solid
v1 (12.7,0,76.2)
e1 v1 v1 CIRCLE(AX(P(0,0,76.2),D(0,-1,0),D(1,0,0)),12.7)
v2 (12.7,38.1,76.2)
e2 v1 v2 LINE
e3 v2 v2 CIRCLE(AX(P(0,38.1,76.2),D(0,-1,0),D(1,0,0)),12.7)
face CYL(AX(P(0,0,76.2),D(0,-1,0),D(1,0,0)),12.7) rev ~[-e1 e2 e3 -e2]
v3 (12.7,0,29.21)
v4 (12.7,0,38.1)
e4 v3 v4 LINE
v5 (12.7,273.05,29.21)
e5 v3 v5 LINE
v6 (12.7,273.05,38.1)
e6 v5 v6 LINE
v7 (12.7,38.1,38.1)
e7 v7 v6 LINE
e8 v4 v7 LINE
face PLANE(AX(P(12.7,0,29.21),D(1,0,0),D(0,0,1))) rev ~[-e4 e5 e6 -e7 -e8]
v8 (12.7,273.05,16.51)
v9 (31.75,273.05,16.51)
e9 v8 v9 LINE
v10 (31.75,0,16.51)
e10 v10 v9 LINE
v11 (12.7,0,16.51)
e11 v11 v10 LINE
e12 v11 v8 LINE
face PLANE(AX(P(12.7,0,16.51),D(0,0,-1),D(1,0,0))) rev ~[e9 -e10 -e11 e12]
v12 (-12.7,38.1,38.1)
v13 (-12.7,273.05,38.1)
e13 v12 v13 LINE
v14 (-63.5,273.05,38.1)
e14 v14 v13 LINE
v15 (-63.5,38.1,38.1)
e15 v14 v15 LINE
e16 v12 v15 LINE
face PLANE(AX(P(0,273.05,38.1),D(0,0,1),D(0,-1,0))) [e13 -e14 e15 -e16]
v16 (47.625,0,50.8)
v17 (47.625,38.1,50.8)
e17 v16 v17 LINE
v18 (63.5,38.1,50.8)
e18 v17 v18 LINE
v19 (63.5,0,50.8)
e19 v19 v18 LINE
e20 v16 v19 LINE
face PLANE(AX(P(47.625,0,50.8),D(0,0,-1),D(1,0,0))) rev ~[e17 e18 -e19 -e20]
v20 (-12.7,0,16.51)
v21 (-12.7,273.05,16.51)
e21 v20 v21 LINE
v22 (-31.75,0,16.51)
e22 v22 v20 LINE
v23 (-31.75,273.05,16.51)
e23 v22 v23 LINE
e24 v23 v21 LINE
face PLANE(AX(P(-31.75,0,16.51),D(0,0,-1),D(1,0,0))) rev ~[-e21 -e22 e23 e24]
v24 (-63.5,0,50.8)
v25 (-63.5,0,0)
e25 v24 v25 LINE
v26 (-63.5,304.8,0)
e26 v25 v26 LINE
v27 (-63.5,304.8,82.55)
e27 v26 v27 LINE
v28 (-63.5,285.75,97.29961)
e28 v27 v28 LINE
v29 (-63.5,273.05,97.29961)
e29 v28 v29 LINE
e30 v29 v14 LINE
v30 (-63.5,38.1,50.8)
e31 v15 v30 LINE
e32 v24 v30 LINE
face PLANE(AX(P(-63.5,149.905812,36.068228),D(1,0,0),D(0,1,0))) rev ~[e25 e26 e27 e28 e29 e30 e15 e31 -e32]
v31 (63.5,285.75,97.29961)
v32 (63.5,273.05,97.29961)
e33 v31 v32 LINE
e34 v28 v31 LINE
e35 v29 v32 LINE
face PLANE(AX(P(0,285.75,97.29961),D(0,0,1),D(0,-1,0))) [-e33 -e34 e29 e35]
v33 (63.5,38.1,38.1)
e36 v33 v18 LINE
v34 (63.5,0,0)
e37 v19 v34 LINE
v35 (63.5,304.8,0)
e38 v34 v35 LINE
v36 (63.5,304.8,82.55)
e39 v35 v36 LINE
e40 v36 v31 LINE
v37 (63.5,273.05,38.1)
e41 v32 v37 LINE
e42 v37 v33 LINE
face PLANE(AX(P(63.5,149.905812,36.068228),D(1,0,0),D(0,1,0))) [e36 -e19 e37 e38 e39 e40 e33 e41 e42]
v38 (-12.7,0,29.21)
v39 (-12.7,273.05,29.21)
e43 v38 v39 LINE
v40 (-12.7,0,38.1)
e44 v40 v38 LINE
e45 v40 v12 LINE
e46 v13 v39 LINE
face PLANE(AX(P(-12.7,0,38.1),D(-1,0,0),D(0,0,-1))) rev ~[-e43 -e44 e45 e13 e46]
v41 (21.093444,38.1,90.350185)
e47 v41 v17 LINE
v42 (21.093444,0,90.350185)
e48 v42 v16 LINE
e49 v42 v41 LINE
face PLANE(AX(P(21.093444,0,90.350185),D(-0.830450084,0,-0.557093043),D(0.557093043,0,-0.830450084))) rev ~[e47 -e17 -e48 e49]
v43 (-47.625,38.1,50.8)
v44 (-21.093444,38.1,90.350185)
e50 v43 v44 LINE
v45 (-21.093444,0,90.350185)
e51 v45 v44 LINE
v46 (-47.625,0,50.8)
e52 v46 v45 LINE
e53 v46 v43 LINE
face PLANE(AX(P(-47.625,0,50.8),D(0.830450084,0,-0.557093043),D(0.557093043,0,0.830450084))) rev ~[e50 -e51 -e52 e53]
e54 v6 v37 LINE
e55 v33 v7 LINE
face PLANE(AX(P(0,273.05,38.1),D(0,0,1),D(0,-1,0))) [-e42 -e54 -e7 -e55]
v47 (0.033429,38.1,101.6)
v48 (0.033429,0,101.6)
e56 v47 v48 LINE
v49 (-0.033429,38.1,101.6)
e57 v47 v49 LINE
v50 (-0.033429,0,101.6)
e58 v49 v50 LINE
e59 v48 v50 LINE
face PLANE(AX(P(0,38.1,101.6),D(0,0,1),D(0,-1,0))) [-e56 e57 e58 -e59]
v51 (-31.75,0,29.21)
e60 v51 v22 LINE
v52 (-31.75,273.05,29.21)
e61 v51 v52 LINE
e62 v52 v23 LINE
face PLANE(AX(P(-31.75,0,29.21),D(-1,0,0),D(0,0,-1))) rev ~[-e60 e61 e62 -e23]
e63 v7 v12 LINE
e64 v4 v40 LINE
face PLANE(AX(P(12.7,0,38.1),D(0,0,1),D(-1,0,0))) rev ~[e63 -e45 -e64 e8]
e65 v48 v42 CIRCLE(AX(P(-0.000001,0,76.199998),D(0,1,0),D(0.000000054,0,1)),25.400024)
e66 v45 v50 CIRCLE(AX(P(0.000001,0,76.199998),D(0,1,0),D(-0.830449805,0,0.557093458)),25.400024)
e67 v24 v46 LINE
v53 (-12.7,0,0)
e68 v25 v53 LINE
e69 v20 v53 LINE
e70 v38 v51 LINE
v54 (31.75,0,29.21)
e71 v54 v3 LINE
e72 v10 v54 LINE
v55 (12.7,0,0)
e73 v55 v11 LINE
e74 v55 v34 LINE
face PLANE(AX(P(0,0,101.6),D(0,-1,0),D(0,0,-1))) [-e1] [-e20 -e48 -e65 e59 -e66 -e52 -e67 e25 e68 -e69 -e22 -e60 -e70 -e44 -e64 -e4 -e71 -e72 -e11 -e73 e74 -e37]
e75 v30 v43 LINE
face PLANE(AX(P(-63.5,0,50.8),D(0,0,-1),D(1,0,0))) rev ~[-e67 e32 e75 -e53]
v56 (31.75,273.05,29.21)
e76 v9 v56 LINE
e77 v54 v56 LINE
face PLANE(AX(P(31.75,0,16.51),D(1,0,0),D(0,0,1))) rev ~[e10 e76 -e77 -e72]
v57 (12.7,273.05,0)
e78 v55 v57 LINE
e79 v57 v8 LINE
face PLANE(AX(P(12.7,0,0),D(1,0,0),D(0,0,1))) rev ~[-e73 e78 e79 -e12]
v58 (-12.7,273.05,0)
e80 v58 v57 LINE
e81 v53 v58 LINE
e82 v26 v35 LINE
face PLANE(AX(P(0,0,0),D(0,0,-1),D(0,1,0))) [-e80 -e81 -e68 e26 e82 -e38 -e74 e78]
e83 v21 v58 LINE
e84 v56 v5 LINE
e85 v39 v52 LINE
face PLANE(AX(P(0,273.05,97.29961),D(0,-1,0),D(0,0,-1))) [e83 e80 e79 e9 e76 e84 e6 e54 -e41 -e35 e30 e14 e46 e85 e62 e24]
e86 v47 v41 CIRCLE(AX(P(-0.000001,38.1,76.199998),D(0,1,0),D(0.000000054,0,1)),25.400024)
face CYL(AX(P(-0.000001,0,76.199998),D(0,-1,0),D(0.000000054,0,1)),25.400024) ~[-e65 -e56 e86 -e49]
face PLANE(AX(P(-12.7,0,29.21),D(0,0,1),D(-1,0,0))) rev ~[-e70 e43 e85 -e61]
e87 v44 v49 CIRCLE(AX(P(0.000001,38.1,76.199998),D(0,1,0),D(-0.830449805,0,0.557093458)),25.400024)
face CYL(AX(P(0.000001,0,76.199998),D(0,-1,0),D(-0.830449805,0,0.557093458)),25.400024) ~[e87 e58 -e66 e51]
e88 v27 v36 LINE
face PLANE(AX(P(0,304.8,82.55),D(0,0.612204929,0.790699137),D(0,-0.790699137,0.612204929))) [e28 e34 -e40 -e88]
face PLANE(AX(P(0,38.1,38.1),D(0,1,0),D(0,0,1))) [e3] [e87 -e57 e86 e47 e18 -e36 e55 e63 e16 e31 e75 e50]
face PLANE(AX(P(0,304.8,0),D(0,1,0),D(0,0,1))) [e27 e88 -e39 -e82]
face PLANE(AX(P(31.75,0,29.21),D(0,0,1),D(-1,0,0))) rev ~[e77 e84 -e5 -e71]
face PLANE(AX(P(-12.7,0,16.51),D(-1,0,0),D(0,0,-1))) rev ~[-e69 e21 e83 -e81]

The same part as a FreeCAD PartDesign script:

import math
import FreeCAD as App
import Part
import Sketcher
Q = App.Units.Quantity


def add_polygon(sketch, points):
    """Adds a closed chain of lines whose ends are joined by coincident constraints."""
    first, n = sketch.GeometryCount, len(points)
    for a, b in zip(points, points[1:] + points[:1]):
        sketch.addGeometry(Part.LineSegment(App.Vector(*a, 0), App.Vector(*b, 0)), False)
    for i in range(n):
        sketch.addConstraint(Sketcher.Constraint("Coincident", first + i, 2, first + (i + 1) % n, 1))

doc = App.newDocument("Part")
body = doc.addObject("PartDesign::Body", "Body")

# Sketch on YZ plane
sketch1 = body.newObject("Sketcher::SketchObject", "Sketch")
sketch1.AttachmentSupport = (doc.getObject("YZ_Plane"), [""])
sketch1.MapMode = "FlatFace"
add_polygon(sketch1, [(0, 102), (0, 0), (305, 0), (305, 83), (286, 97), (273, 97), (273, 38), (38, 38), (38, 102)])  # lines 0-8
sketch1.addConstraint([
    Sketcher.Constraint("Vertical", 0),
    Sketcher.Constraint("Horizontal", 1),
    Sketcher.Constraint("Vertical", 2),
    Sketcher.Constraint("Horizontal", 4),
    Sketcher.Constraint("Vertical", 5),
    Sketcher.Constraint("Horizontal", 6),
    Sketcher.Constraint("Vertical", 7),
    Sketcher.Constraint("Horizontal", 8),
    Sketcher.Constraint("Coincident", 0, 2, -1, 1),
    Sketcher.Constraint("DistanceX", 1, 1, 1, 2, Q("12 in")),
    Sketcher.Constraint("DistanceY", 0, 2, 0, 1, Q("4 in")),
    Sketcher.Constraint("DistanceX", 4, 2, 4, 1, Q("0.5 in")),
    Sketcher.Constraint("DistanceX", 8, 2, 8, 1, Q("1.5 in")),
    Sketcher.Constraint("DistanceY", 7, 1, 7, 2, Q("2.5 in")),
    Sketcher.Constraint("DistanceX", 6, 2, 6, 1, Q("9.25 in")),
    Sketcher.Constraint("DistanceY", 2, 1, 2, 2, Q("3.25 in")),
    Sketcher.Constraint("DistanceY", 5, 2, 5, 1, 59.19961),
])
pad1 = body.newObject("PartDesign::Pad", "Pad")
pad1.Profile = sketch1
pad1.Length = Q("5 in")
pad1.Midplane = True

# Sketch on XZ plane
sketch2 = body.newObject("Sketcher::SketchObject", "Sketch001")
sketch2.AttachmentSupport = (doc.getObject("XZ_Plane"), [""])
sketch2.MapMode = "FlatFace"
add_polygon(sketch2, [(-13, 17), (-13, 0), (13, 0), (13, 17), (32, 17), (32, 29), (13, 29), (13, 38), (-13, 38), (-13, 29), (-32, 29), (-32, 17)])  # lines 0-11
sketch2.addConstraint([
    Sketcher.Constraint("Vertical", 0),
    Sketcher.Constraint("Horizontal", 1),
    Sketcher.Constraint("Vertical", 2),
    Sketcher.Constraint("Horizontal", 3),
    Sketcher.Constraint("Vertical", 4),
    Sketcher.Constraint("Horizontal", 5),
    Sketcher.Constraint("Vertical", 6),
    Sketcher.Constraint("Horizontal", 7),
    Sketcher.Constraint("Vertical", 8),
    Sketcher.Constraint("Horizontal", 9),
    Sketcher.Constraint("Vertical", 10),
    Sketcher.Constraint("Horizontal", 11),
    Sketcher.Constraint("Symmetric", 0, 2, 1, 2, -1, 1),
    Sketcher.Constraint("Symmetric", 5, 2, 8, 2, -2),
    Sketcher.Constraint("Symmetric", 3, 2, 10, 2, -2),
    Sketcher.Constraint("Vertical", 2, 2, 5, 2),
    Sketcher.Constraint("DistanceX", 1, 1, 1, 2, Q("1 in")),
    Sketcher.Constraint("DistanceY", 4, 1, 4, 2, Q("0.5 in")),
    Sketcher.Constraint("DistanceX", 3, 1, 3, 2, Q("0.75 in")),
    Sketcher.Constraint("DistanceY", 0, 2, 0, 1, Q("0.65 in")),
    Sketcher.Constraint("DistanceY", 6, 1, 6, 2, Q("0.35 in")),
])
pocket1 = body.newObject("PartDesign::Pocket", "Pocket")
pocket1.Profile = sketch2
pocket1.Length = Q("10.75 in")

# Sketch on XZ plane
sketch3 = body.newObject("Sketcher::SketchObject", "Sketch002")
sketch3.AttachmentSupport = (doc.getObject("XZ_Plane"), [""])
sketch3.MapMode = "FlatFace"
sketch3.addGeometry([
    Part.LineSegment(App.Vector(-63.5, 101.600022, 0), App.Vector(-63.5, 50.8, 0)),  # 0
    Part.LineSegment(App.Vector(-63.5, 50.8, 0), App.Vector(-47.625, 50.8, 0)),  # 1
    Part.LineSegment(App.Vector(-47.625, 50.8, 0), App.Vector(-21.093444, 90.350185, 0)),  # 2
    Part.ArcOfCircle(Part.Circle(App.Vector(0.000001, 76.199998, 0), App.Vector(0, 0, 1), 25.400024), math.radians(90.000003), math.radians(146.144972)),  # 3
    Part.LineSegment(App.Vector(0, 101.600022, 0), App.Vector(-63.5, 101.600022, 0)),  # 4
    Part.LineSegment(App.Vector(47.625, 50.8, 0), App.Vector(63.5, 50.8, 0)),  # 5
    Part.LineSegment(App.Vector(63.5, 50.8, 0), App.Vector(63.5, 101.600022, 0)),  # 6
    Part.LineSegment(App.Vector(63.5, 101.600022, 0), App.Vector(0, 101.600022, 0)),  # 7
    Part.ArcOfCircle(Part.Circle(App.Vector(-0.000001, 76.199998, 0), App.Vector(0, 0, 1), 25.400024), math.radians(33.855028), math.radians(89.999997)),  # 8
    Part.LineSegment(App.Vector(21.093444, 90.350185, 0), App.Vector(47.625, 50.8, 0)),  # 9
    Part.Circle(App.Vector(0, 76.2, 0), App.Vector(0, 0, 1), 12.7),  # 10
], False)
sketch3.addConstraint([
    Sketcher.Constraint("Coincident", 0, 2, 1, 1),
    Sketcher.Constraint("Coincident", 1, 2, 2, 1),
    Sketcher.Constraint("Coincident", 2, 2, 3, 2),
    Sketcher.Constraint("Coincident", 3, 1, 4, 1),
    Sketcher.Constraint("Coincident", 4, 2, 0, 1),
    Sketcher.Constraint("Coincident", 5, 2, 6, 1),
    Sketcher.Constraint("Coincident", 6, 2, 7, 1),
    Sketcher.Constraint("Coincident", 7, 2, 8, 2),
    Sketcher.Constraint("Coincident", 8, 1, 9, 1),
    Sketcher.Constraint("Coincident", 9, 2, 5, 1),
    Sketcher.Constraint("Vertical", 0),
    Sketcher.Constraint("Horizontal", 1),
    Sketcher.Constraint("Horizontal", 4),
    Sketcher.Constraint("Horizontal", 5),
    Sketcher.Constraint("Vertical", 6),
    Sketcher.Constraint("Horizontal", 7),
    Sketcher.Constraint("Coincident", 8, 3, 3, 3),
    Sketcher.Constraint("Coincident", 10, 3, 3, 3),
    Sketcher.Constraint("Coincident", 7, 2, 3, 1),
    Sketcher.Constraint("PointOnObject", 3, 3, -2),
    Sketcher.Constraint("PointOnObject", 3, 1, -2),
    Sketcher.Constraint("Diameter", 10, Q("1 in")),
    Sketcher.Constraint("DistanceX", 4, 2, 4, 1, Q("2.5 in")),
    Sketcher.Constraint("DistanceX", 7, 2, 7, 1, Q("2.5 in")),
    Sketcher.Constraint("DistanceY", -1, 1, 3, 3, Q("2.9999999 in")),
    Sketcher.Constraint("DistanceY", -1, 1, 0, 2, Q("2 in")),
    Sketcher.Constraint("DistanceY", -1, 1, 5, 2, Q("2 in")),
    Sketcher.Constraint("DistanceX", 1, 1, 1, 2, Q("0.625 in")),
    Sketcher.Constraint("DistanceX", 5, 1, 5, 2, Q("0.625 in")),
    Sketcher.Constraint("Distance", 2, Q("1.875 in")),
    Sketcher.Constraint("Distance", 9, Q("1.875 in")),
    Sketcher.Constraint("Radius", 3, 25.400024),
])
pocket2 = body.newObject("PartDesign::Pocket", "Pocket001")
pocket2.Profile = sketch3
pocket2.Length = Q("1.5 in")

doc.recompute()
